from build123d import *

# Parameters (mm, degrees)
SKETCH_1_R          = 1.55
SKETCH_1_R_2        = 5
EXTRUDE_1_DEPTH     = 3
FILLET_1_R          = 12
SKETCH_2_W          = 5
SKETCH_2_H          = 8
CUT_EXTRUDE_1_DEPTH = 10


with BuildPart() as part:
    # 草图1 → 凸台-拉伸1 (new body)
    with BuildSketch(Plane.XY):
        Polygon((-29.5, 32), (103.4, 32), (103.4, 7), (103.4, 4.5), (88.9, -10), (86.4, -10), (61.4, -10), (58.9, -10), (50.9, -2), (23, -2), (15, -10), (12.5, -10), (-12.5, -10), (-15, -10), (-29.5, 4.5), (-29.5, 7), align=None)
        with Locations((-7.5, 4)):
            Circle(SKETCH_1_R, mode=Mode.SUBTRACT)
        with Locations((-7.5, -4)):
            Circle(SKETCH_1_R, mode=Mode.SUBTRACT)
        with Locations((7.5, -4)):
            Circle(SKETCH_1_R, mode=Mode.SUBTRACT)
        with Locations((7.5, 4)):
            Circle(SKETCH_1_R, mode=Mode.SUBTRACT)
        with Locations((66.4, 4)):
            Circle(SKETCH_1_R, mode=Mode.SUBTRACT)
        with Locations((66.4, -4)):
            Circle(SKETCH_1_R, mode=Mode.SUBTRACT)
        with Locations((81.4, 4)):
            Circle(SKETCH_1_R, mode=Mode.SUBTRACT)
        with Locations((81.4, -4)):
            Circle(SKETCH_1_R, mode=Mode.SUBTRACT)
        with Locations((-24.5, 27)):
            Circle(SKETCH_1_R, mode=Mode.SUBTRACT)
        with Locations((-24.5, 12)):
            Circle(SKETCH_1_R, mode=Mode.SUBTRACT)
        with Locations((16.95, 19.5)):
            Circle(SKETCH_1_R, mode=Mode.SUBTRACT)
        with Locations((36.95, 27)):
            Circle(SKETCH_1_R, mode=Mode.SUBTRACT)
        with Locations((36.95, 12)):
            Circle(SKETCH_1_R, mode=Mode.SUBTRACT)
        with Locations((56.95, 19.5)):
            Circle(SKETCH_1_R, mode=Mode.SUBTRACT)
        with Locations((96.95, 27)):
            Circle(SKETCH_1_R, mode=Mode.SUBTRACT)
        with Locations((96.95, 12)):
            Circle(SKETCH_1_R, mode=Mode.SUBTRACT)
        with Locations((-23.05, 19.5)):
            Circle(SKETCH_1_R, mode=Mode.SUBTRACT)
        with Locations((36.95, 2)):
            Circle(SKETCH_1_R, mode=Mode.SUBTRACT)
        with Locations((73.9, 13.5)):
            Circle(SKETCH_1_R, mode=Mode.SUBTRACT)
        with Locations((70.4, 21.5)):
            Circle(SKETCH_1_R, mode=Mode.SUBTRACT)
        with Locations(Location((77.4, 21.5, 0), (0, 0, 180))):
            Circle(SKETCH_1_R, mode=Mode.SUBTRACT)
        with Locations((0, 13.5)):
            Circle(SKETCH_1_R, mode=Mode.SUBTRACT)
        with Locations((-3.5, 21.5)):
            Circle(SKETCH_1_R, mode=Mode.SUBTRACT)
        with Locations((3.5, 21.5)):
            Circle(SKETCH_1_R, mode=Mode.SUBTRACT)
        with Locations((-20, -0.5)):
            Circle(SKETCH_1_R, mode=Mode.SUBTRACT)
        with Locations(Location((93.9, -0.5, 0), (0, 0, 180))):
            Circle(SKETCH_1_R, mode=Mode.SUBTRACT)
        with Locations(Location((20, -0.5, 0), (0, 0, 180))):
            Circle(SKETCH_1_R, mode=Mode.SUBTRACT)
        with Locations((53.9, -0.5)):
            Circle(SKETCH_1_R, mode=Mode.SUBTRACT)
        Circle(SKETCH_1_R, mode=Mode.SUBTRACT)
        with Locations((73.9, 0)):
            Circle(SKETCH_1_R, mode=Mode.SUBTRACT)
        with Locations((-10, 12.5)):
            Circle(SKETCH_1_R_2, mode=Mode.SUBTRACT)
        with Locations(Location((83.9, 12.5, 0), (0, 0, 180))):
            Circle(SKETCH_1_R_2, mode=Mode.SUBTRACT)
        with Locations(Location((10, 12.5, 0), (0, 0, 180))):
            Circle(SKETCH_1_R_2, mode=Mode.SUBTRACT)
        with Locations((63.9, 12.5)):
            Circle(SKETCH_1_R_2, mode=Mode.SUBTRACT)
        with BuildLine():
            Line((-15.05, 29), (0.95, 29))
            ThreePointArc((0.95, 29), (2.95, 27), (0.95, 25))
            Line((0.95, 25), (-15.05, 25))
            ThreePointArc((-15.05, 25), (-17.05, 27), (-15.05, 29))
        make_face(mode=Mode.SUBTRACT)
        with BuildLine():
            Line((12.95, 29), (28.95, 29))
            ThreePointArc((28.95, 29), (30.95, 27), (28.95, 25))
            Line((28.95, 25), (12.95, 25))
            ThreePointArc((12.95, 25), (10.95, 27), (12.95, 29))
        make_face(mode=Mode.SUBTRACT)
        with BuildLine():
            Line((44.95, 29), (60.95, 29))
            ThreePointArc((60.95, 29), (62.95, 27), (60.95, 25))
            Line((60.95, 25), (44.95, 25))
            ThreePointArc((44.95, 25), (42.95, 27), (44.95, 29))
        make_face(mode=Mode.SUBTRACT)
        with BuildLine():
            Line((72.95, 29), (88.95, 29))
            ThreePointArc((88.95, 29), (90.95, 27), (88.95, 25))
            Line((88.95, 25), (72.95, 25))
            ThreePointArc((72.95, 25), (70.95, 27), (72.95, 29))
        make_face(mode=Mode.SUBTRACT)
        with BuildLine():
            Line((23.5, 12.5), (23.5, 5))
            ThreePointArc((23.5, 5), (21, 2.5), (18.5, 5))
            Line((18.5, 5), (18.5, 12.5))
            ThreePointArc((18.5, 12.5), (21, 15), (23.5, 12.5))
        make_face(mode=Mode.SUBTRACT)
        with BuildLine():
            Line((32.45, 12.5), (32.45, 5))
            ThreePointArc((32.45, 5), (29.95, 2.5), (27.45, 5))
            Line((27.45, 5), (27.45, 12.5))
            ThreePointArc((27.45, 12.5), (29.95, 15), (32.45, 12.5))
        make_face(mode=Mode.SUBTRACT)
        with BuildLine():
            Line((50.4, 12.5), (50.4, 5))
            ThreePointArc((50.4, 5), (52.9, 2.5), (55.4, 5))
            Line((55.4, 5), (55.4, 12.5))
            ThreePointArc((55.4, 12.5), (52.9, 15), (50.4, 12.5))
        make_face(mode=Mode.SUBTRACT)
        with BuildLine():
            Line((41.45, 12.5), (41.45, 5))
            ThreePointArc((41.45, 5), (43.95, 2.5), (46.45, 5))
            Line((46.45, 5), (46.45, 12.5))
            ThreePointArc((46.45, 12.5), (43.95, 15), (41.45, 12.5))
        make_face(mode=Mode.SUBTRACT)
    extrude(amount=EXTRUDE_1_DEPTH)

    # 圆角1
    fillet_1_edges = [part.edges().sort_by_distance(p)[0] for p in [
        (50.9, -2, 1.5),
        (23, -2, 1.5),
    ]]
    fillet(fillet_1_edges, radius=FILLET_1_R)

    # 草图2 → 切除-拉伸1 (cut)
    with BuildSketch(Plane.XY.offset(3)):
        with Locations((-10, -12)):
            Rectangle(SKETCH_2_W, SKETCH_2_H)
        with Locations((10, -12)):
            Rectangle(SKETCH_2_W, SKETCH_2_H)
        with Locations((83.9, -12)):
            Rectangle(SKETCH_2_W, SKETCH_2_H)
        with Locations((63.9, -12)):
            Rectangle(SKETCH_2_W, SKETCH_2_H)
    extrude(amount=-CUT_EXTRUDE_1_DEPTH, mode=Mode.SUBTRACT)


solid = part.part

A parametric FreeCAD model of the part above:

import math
import FreeCAD as App
import Part
import Sketcher
from FreeCAD import Vector
Q = App.Units.Quantity


def edges_at(feature, points):
    """Names of the edges that pass closest to the given points."""
    edges = feature.Shape.Edges
    near = lambda p: min(range(len(edges)), key=lambda i: edges[i].distToShape(Part.Vertex(*p))[0])
    return sorted({f"Edge{near(p) + 1}" for p in points})

doc = App.newDocument("Part")
body = doc.addObject("PartDesign::Body", "Body")

# Sketch on XY plane
sketch1 = body.newObject("Sketcher::SketchObject", "Sketch")
sketch1.AttachmentSupport = (doc.getObject("XY_Plane"), [""])
sketch1.MapMode = "FlatFace"
sketch1.addGeometry(Part.LineSegment(Vector(103.4, 32, 0), Vector(-29.5, 32, 0)), False)
sketch1.addGeometry(Part.LineSegment(Vector(-29.5, 32, 0), Vector(-29.5, 4.5, 0)), False)
sketch1.addGeometry(Part.LineSegment(Vector(-29.5, 4.5, 0), Vector(-15, -10, 0)), False)
sketch1.addGeometry(Part.LineSegment(Vector(-15, -10, 0), Vector(15, -10, 0)), False)
sketch1.addGeometry(Part.LineSegment(Vector(15, -10, 0), Vector(23, -2, 0)), False)
sketch1.addGeometry(Part.LineSegment(Vector(23, -2, 0), Vector(50.9, -2, 0)), False)
sketch1.addGeometry(Part.LineSegment(Vector(50.9, -2, 0), Vector(58.9, -10, 0)), False)
sketch1.addGeometry(Part.LineSegment(Vector(58.9, -10, 0), Vector(88.9, -10, 0)), False)
sketch1.addGeometry(Part.LineSegment(Vector(88.9, -10, 0), Vector(103.4, 4.5, 0)), False)
sketch1.addGeometry(Part.LineSegment(Vector(103.4, 4.5, 0), Vector(103.4, 32, 0)), False)
sketch1.addGeometry(Part.Circle(Vector(81.4, -4, 0), Vector(0, 0, 1), 1.6), False)
sketch1.addGeometry(Part.Circle(Vector(93.9, -0.5, 0), Vector(0, 0, 1), 1.6), False)
sketch1.addGeometry(Part.Circle(Vector(73.9, 0, 0), Vector(0, 0, 1), 1.6), False)
sketch1.addGeometry(Part.Circle(Vector(66.4, -4, 0), Vector(0, 0, 1), 1.6), False)
sketch1.addGeometry(Part.Circle(Vector(53.9, -0.5, 0), Vector(0, 0, 1), 1.6), False)
sketch1.addGeometry(Part.Circle(Vector(37, 2, 0), Vector(0, 0, 1), 1.6), False)
sketch1.addGeometry(Part.Circle(Vector(81.4, 4, 0), Vector(0, 0, 1), 1.6), False)
sketch1.addGeometry(Part.Circle(Vector(66.4, 4, 0), Vector(0, 0, 1), 1.6), False)
sketch1.addGeometry(Part.ArcOfCircle(Part.Circle(Vector(52.9, 12.5, 0), Vector(0, 0, 1), 2.5), math.radians(0), math.radians(180)), False)
sketch1.addGeometry(Part.LineSegment(Vector(55.4, 12.5, 0), Vector(55.4, 5, 0)), False)
sketch1.addGeometry(Part.ArcOfCircle(Part.Circle(Vector(52.9, 5, 0), Vector(0, 0, 1), 2.5), math.radians(180), math.radians(360)), False)
sketch1.addGeometry(Part.LineSegment(Vector(50.4, 5, 0), Vector(50.4, 12.5, 0)), False)
sketch1.addGeometry(Part.ArcOfCircle(Part.Circle(Vector(44, 12.5, 0), Vector(0, 0, 1), 2.5), math.radians(0), math.radians(180)), False)
sketch1.addGeometry(Part.LineSegment(Vector(46.5, 12.5, 0), Vector(46.5, 5, 0)), False)
sketch1.addGeometry(Part.ArcOfCircle(Part.Circle(Vector(44, 5, 0), Vector(0, 0, 1), 2.5), math.radians(180), math.radians(360)), False)
sketch1.addGeometry(Part.LineSegment(Vector(41.5, 5, 0), Vector(41.5, 12.5, 0)), False)
sketch1.addGeometry(Part.Circle(Vector(7.5, -4, 0), Vector(0, 0, 1), 1.6), False)
sketch1.addGeometry(Part.Circle(Vector(20, -0.5, 0), Vector(0, 0, 1), 1.6), False)
sketch1.addGeometry(Part.Circle(Vector(-7.5, -4, 0), Vector(0, 0, 1), 1.6), False)
sketch1.addGeometry(Part.Circle(Vector(0, 0, 0), Vector(0, 0, 1), 1.6), False)
sketch1.addGeometry(Part.Circle(Vector(-20, -0.5, 0), Vector(0, 0, 1), 1.6), False)
sketch1.addGeometry(Part.Circle(Vector(7.5, 4, 0), Vector(0, 0, 1), 1.6), False)
sketch1.addGeometry(Part.LineSegment(Vector(32.5, 12.5, 0), Vector(32.5, 5, 0)), False)
sketch1.addGeometry(Part.ArcOfCircle(Part.Circle(Vector(29.9, 5, 0), Vector(0, 0, 1), 2.5), math.radians(180), math.radians(360)), False)
sketch1.addGeometry(Part.LineSegment(Vector(27.4, 5, 0), Vector(27.4, 12.5, 0)), False)
sketch1.addGeometry(Part.ArcOfCircle(Part.Circle(Vector(29.9, 12.5, 0), Vector(0, 0, 1), 2.5), math.radians(0), math.radians(180)), False)
sketch1.addGeometry(Part.LineSegment(Vector(23.5, 12.5, 0), Vector(23.5, 5, 0)), False)
sketch1.addGeometry(Part.ArcOfCircle(Part.Circle(Vector(21, 5, 0), Vector(0, 0, 1), 2.5), math.radians(180), math.radians(360)), False)
sketch1.addGeometry(Part.LineSegment(Vector(18.5, 5, 0), Vector(18.5, 12.5, 0)), False)
sketch1.addGeometry(Part.ArcOfCircle(Part.Circle(Vector(21, 12.5, 0), Vector(0, 0, 1), 2.5), math.radians(0), math.radians(180)), False)
sketch1.addGeometry(Part.Circle(Vector(-7.5, 4, 0), Vector(0, 0, 1), 1.6), False)
sketch1.addGeometry(Part.Circle(Vector(97, 12, 0), Vector(0, 0, 1), 1.6), False)
sketch1.addGeometry(Part.Circle(Vector(83.9, 12.5, 0), Vector(0, 0, 1), 5), False)
sketch1.addGeometry(Part.Circle(Vector(73.9, 13.5, 0), Vector(0, 0, 1), 1.6), False)
sketch1.addGeometry(Part.Circle(Vector(63.9, 12.5, 0), Vector(0, 0, 1), 5), False)
sketch1.addGeometry(Part.Circle(Vector(37, 12, 0), Vector(0, 0, 1), 1.6), False)
sketch1.addGeometry(Part.Circle(Vector(57, 19.5, 0), Vector(0, 0, 1), 1.6), False)
sketch1.addGeometry(Part.Circle(Vector(77.4, 21.5, 0), Vector(0, 0, 1), 1.6), False)
sketch1.addGeometry(Part.Circle(Vector(70.4, 21.5, 0), Vector(0, 0, 1), 1.6), False)
sketch1.addGeometry(Part.Circle(Vector(97, 27, 0), Vector(0, 0, 1), 1.6), False)
sketch1.addGeometry(Part.LineSegment(Vector(73, 29, 0), Vector(89, 29, 0)), False)
sketch1.addGeometry(Part.ArcOfCircle(Part.Circle(Vector(89, 27, 0), Vector(0, 0, 1), 2), math.radians(-90), math.radians(90)), False)
sketch1.addGeometry(Part.LineSegment(Vector(89, 25, 0), Vector(73, 25, 0)), False)
sketch1.addGeometry(Part.ArcOfCircle(Part.Circle(Vector(73, 27, 0), Vector(0, 0, 1), 2), math.radians(90), math.radians(270)), False)
sketch1.addGeometry(Part.LineSegment(Vector(45, 29, 0), Vector(61, 29, 0)), False)
sketch1.addGeometry(Part.ArcOfCircle(Part.Circle(Vector(61, 27, 0), Vector(0, 0, 1), 2), math.radians(-90), math.radians(90)), False)
sketch1.addGeometry(Part.LineSegment(Vector(61, 25, 0), Vector(45, 25, 0)), False)
sketch1.addGeometry(Part.ArcOfCircle(Part.Circle(Vector(45, 27, 0), Vector(0, 0, 1), 2), math.radians(90), math.radians(270)), False)
sketch1.addGeometry(Part.Circle(Vector(37, 27, 0), Vector(0, 0, 1), 1.6), False)
sketch1.addGeometry(Part.Circle(Vector(10, 12.5, 0), Vector(0, 0, 1), 5), False)
sketch1.addGeometry(Part.Circle(Vector(16.9, 19.5, 0), Vector(0, 0, 1), 1.6), False)
sketch1.addGeometry(Part.Circle(Vector(0, 13.5, 0), Vector(0, 0, 1), 1.6), False)
sketch1.addGeometry(Part.Circle(Vector(-10, 12.5, 0), Vector(0, 0, 1), 5), False)
sketch1.addGeometry(Part.Circle(Vector(-24.5, 12, 0), Vector(0, 0, 1), 1.6), False)
sketch1.addGeometry(Part.Circle(Vector(-23.1, 19.5, 0), Vector(0, 0, 1), 1.6), False)
sketch1.addGeometry(Part.LineSegment(Vector(12.9, 29, 0), Vector(28.9, 29, 0)), False)
sketch1.addGeometry(Part.ArcOfCircle(Part.Circle(Vector(28.9, 27, 0), Vector(0, 0, 1), 2), math.radians(-90), math.radians(90)), False)
sketch1.addGeometry(Part.LineSegment(Vector(28.9, 25, 0), Vector(12.9, 25, 0)), False)
sketch1.addGeometry(Part.ArcOfCircle(Part.Circle(Vector(12.9, 27, 0), Vector(0, 0, 1), 2), math.radians(90), math.radians(270)), False)
sketch1.addGeometry(Part.Circle(Vector(3.5, 21.5, 0), Vector(0, 0, 1), 1.6), False)
sketch1.addGeometry(Part.Circle(Vector(-3.5, 21.5, 0), Vector(0, 0, 1), 1.6), False)
sketch1.addGeometry(Part.LineSegment(Vector(-15.1, 29, 0), Vector(0.9, 29, 0)), False)
sketch1.addGeometry(Part.ArcOfCircle(Part.Circle(Vector(0.9, 27, 0), Vector(0, 0, 1), 2), math.radians(-90), math.radians(90)), False)
sketch1.addGeometry(Part.LineSegment(Vector(0.9, 25, 0), Vector(-15.1, 25, 0)), False)
sketch1.addGeometry(Part.ArcOfCircle(Part.Circle(Vector(-15.1, 27, 0), Vector(0, 0, 1), 2), math.radians(90), math.radians(270)), False)
sketch1.addGeometry(Part.Circle(Vector(-24.5, 27, 0), Vector(0, 0, 1), 1.6), False)
sketch1.addConstraint(Sketcher.Constraint("Coincident", 0, 2, 1, 1))
sketch1.addConstraint(Sketcher.Constraint("Coincident", 1, 2, 2, 1))
sketch1.addConstraint(Sketcher.Constraint("Coincident", 2, 2, 3, 1))
sketch1.addConstraint(Sketcher.Constraint("Coincident", 3, 2, 4, 1))
sketch1.addConstraint(Sketcher.Constraint("Coincident", 4, 2, 5, 1))
sketch1.addConstraint(Sketcher.Constraint("Coincident", 5, 2, 6, 1))
sketch1.addConstraint(Sketcher.Constraint("Coincident", 6, 2, 7, 1))
sketch1.addConstraint(Sketcher.Constraint("Coincident", 7, 2, 8, 1))
sketch1.addConstraint(Sketcher.Constraint("Coincident", 8, 2, 9, 1))
sketch1.addConstraint(Sketcher.Constraint("Coincident", 9, 2, 0, 1))
sketch1.addConstraint(Sketcher.Constraint("Tangent", 18, 1, 19, 1))
sketch1.addConstraint(Sketcher.Constraint("Tangent", 19, 2, 20, 2))
sketch1.addConstraint(Sketcher.Constraint("Tangent", 20, 1, 21, 1))
sketch1.addConstraint(Sketcher.Constraint("Tangent", 21, 2, 18, 2))
sketch1.addConstraint(Sketcher.Constraint("Tangent", 22, 1, 23, 1))
sketch1.addConstraint(Sketcher.Constraint("Tangent", 23, 2, 24, 2))
sketch1.addConstraint(Sketcher.Constraint("Tangent", 24, 1, 25, 1))
sketch1.addConstraint(Sketcher.Constraint("Tangent", 25, 2, 22, 2))
sketch1.addConstraint(Sketcher.Constraint("Tangent", 32, 2, 33, 2))
sketch1.addConstraint(Sketcher.Constraint("Tangent", 33, 1, 34, 1))
sketch1.addConstraint(Sketcher.Constraint("Tangent", 34, 2, 35, 2))
sketch1.addConstraint(Sketcher.Constraint("Tangent", 35, 1, 32, 1))
sketch1.addConstraint(Sketcher.Constraint("Tangent", 36, 2, 37, 2))
sketch1.addConstraint(Sketcher.Constraint("Tangent", 37, 1, 38, 1))
sketch1.addConstraint(Sketcher.Constraint("Tangent", 38, 2, 39, 2))
sketch1.addConstraint(Sketcher.Constraint("Tangent", 39, 1, 36, 1))
sketch1.addConstraint(Sketcher.Constraint("Tangent", 50, 2, 51, 2))
sketch1.addConstraint(Sketcher.Constraint("Tangent", 51, 1, 52, 1))
sketch1.addConstraint(Sketcher.Constraint("Tangent", 52, 2, 53, 2))
sketch1.addConstraint(Sketcher.Constraint("Tangent", 53, 1, 50, 1))
sketch1.addConstraint(Sketcher.Constraint("Tangent", 54, 2, 55, 2))
sketch1.addConstraint(Sketcher.Constraint("Tangent", 55, 1, 56, 1))
sketch1.addConstraint(Sketcher.Constraint("Tangent", 56, 2, 57, 2))
sketch1.addConstraint(Sketcher.Constraint("Tangent", 57, 1, 54, 1))
sketch1.addConstraint(Sketcher.Constraint("Tangent", 65, 2, 66, 2))
sketch1.addConstraint(Sketcher.Constraint("Tangent", 66, 1, 67, 1))
sketch1.addConstraint(Sketcher.Constraint("Tangent", 67, 2, 68, 2))
sketch1.addConstraint(Sketcher.Constraint("Tangent", 68, 1, 65, 1))
sketch1.addConstraint(Sketcher.Constraint("Tangent", 71, 2, 72, 2))
sketch1.addConstraint(Sketcher.Constraint("Tangent", 72, 1, 73, 1))
sketch1.addConstraint(Sketcher.Constraint("Tangent", 73, 2, 74, 2))
sketch1.addConstraint(Sketcher.Constraint("Tangent", 74, 1, 71, 1))
sketch1.addConstraint(Sketcher.Constraint("Horizontal", 0))
sketch1.addConstraint(Sketcher.Constraint("Vertical", 1))
sketch1.addConstraint(Sketcher.Constraint("Horizontal", 3))
sketch1.addConstraint(Sketcher.Constraint("Horizontal", 5))
sketch1.addConstraint(Sketcher.Constraint("Horizontal", 7))
sketch1.addConstraint(Sketcher.Constraint("Vertical", 9))
sketch1.addConstraint(Sketcher.Constraint("Vertical", 19))
sketch1.addConstraint(Sketcher.Constraint("Vertical", 21))
sketch1.addConstraint(Sketcher.Constraint("Vertical", 23))
sketch1.addConstraint(Sketcher.Constraint("Vertical", 25))
sketch1.addConstraint(Sketcher.Constraint("Vertical", 32))
sketch1.addConstraint(Sketcher.Constraint("Vertical", 34))
sketch1.addConstraint(Sketcher.Constraint("Vertical", 36))
sketch1.addConstraint(Sketcher.Constraint("Vertical", 38))
sketch1.addConstraint(Sketcher.Constraint("Horizontal", 50))
sketch1.addConstraint(Sketcher.Constraint("Horizontal", 52))
sketch1.addConstraint(Sketcher.Constraint("Horizontal", 54))
sketch1.addConstraint(Sketcher.Constraint("Horizontal", 56))
sketch1.addConstraint(Sketcher.Constraint("Horizontal", 65))
sketch1.addConstraint(Sketcher.Constraint("Horizontal", 67))
sketch1.addConstraint(Sketcher.Constraint("Horizontal", 71))
sketch1.addConstraint(Sketcher.Constraint("Horizontal", 73))
sketch1.addConstraint(Sketcher.Constraint("Coincident", 29, 3, -1, 1))
sketch1.addConstraint(Sketcher.Constraint("Equal", 10, 11))
sketch1.addConstraint(Sketcher.Constraint("Equal", 11, 12))
sketch1.addConstraint(Sketcher.Constraint("Equal", 12, 13))
sketch1.addConstraint(Sketcher.Constraint("Equal", 13, 14))
sketch1.addConstraint(Sketcher.Constraint("Equal", 14, 15))
sketch1.addConstraint(Sketcher.Constraint("Equal", 15, 16))
sketch1.addConstraint(Sketcher.Constraint("Equal", 16, 17))
sketch1.addConstraint(Sketcher.Constraint("Equal", 20, 22))
sketch1.addConstraint(Sketcher.Constraint("Equal", 17, 26))
sketch1.addConstraint(Sketcher.Constraint("Equal", 26, 27))
sketch1.addConstraint(Sketcher.Constraint("Equal", 27, 28))
sketch1.addConstraint(Sketcher.Constraint("Equal", 28, 29))
sketch1.addConstraint(Sketcher.Constraint("Equal", 29, 30))
sketch1.addConstraint(Sketcher.Constraint("Equal", 30, 31))
sketch1.addConstraint(Sketcher.Constraint("Equal", 24, 33))
sketch1.addConstraint(Sketcher.Constraint("Equal", 35, 37))
sketch1.addConstraint(Sketcher.Constraint("Equal", 31, 40))
sketch1.addConstraint(Sketcher.Constraint("Equal", 40, 41))
sketch1.addConstraint(Sketcher.Constraint("Equal", 41, 43))
sketch1.addConstraint(Sketcher.Constraint("Equal", 42, 44))
sketch1.addConstraint(Sketcher.Constraint("Equal", 43, 45))
sketch1.addConstraint(Sketcher.Constraint("Equal", 45, 46))
sketch1.addConstraint(Sketcher.Constraint("Equal", 46, 47))
sketch1.addConstraint(Sketcher.Constraint("Equal", 47, 48))
sketch1.addConstraint(Sketcher.Constraint("Equal", 48, 49))
sketch1.addConstraint(Sketcher.Constraint("Equal", 53, 55))
sketch1.addConstraint(Sketcher.Constraint("Equal", 49, 58))
sketch1.addConstraint(Sketcher.Constraint("Equal", 44, 59))
sketch1.addConstraint(Sketcher.Constraint("Equal", 58, 60))
sketch1.addConstraint(Sketcher.Constraint("Equal", 60, 61))
sketch1.addConstraint(Sketcher.Constraint("Equal", 59, 62))
sketch1.addConstraint(Sketcher.Constraint("Equal", 61, 63))
sketch1.addConstraint(Sketcher.Constraint("Equal", 63, 64))
sketch1.addConstraint(Sketcher.Constraint("Equal", 57, 66))
sketch1.addConstraint(Sketcher.Constraint("Equal", 64, 69))
sketch1.addConstraint(Sketcher.Constraint("Equal", 69, 70))
sketch1.addConstraint(Sketcher.Constraint("Equal", 68, 72))
sketch1.addConstraint(Sketcher.Constraint("Equal", 70, 75))
sketch1.addConstraint(Sketcher.Constraint("Symmetric", 28, 3, 31, 3, -1, 1))
sketch1.addConstraint(Sketcher.Constraint("Symmetric", 26, 3, 40, 3, -1, 1))
sketch1.addConstraint(Sketcher.Constraint("Symmetric", 26, 3, 28, 3, -2))
sketch1.addConstraint(Sketcher.Constraint("Symmetric", 27, 3, 30, 3, -2))
sketch1.addConstraint(Sketcher.Constraint("Symmetric", 59, 3, 62, 3, -2))
sketch1.addConstraint(Sketcher.Constraint("Symmetric", 69, 3, 70, 3, -2))
sketch1.addConstraint(Sketcher.Constraint("Symmetric", 10, 3, 16, 3, -1))
sketch1.addConstraint(Sketcher.Constraint("Symmetric", 13, 3, 17, 3, -1))
sketch1.addConstraint(Sketcher.Constraint("PointOnObject", 12, 3, -1))
sketch1.addConstraint(Sketcher.Constraint("PointOnObject", 61, 3, -2))
sketch1.addConstraint(Sketcher.Constraint("Perpendicular", 2, 4))
sketch1.addConstraint(Sketcher.Constraint("Perpendicular", 4, 6))
sketch1.addConstraint(Sketcher.Constraint("Perpendicular", 6, 8))
sketch1.addConstraint(Sketcher.Constraint("Horizontal", 10, 3, 13, 3))
sketch1.addConstraint(Sketcher.Constraint("Horizontal", 11, 3, 14, 3))
sketch1.addConstraint(Sketcher.Constraint("Horizontal", 18, 3, 22, 3))
sketch1.addConstraint(Sketcher.Constraint("Horizontal", 20, 3, 24, 3))
sketch1.addConstraint(Sketcher.Constraint("Horizontal", 13, 3, 26, 3))
sketch1.addConstraint(Sketcher.Constraint("Horizontal", 14, 3, 27, 3))
sketch1.addConstraint(Sketcher.Constraint("Horizontal", 24, 3, 33, 3))
sketch1.addConstraint(Sketcher.Constraint("Horizontal", 22, 3, 35, 3))
sketch1.addConstraint(Sketcher.Constraint("Horizontal", 33, 3, 37, 3))
sketch1.addConstraint(Sketcher.Constraint("Horizontal", 35, 3, 39, 3))
sketch1.addConstraint(Sketcher.Constraint("Horizontal", 39, 3, 42, 3))
sketch1.addConstraint(Sketcher.Constraint("Horizontal", 42, 3, 44, 3))
sketch1.addConstraint(Sketcher.Constraint("Horizontal", 41, 3, 45, 3))
sketch1.addConstraint(Sketcher.Constraint("Horizontal", 47, 3, 48, 3))
sketch1.addConstraint(Sketcher.Constraint("Horizontal", 49, 3, 51, 3))
sketch1.addConstraint(Sketcher.Constraint("Horizontal", 53, 3, 55, 3))
sketch1.addConstraint(Sketcher.Constraint("Horizontal", 57, 3, 58, 3))
sketch1.addConstraint(Sketcher.Constraint("Horizontal", 44, 3, 59, 3))
sketch1.addConstraint(Sketcher.Constraint("Horizontal", 46, 3, 60, 3))
sketch1.addConstraint(Sketcher.Constraint("Horizontal", 43, 3, 61, 3))
sketch1.addConstraint(Sketcher.Constraint("Horizontal", 45, 3, 63, 3))
sketch1.addConstraint(Sketcher.Constraint("Horizontal", 60, 3, 64, 3))
sketch1.addConstraint(Sketcher.Constraint("Horizontal", 58, 3, 66, 3))
sketch1.addConstraint(Sketcher.Constraint("Horizontal", 48, 3, 69, 3))
sketch1.addConstraint(Sketcher.Constraint("Horizontal", 68, 3, 72, 3))
sketch1.addConstraint(Sketcher.Constraint("Horizontal", 74, 3, 75, 3))
sketch1.addConstraint(Sketcher.Constraint("Horizontal", 3, 2, 6, 2))
sketch1.addConstraint(Sketcher.Constraint("Horizontal", 1, 2, 8, 2))
sketch1.addConstraint(Sketcher.Constraint("Vertical", 12, 3, 43, 3))
sketch1.addConstraint(Sketcher.Constraint("Vertical", 15, 3, 45, 3))
sketch1.addConstraint(Sketcher.Constraint("Vertical", 41, 3, 49, 3))
sketch1.addConstraint(Sketcher.Constraint("Vertical", 45, 3, 58, 3))
sketch1.addConstraint(Sketcher.Constraint("Vertical", 63, 3, 75, 3))
sketch1.addConstraint(Sketcher.Constraint("Equal", 3, 7))
sketch1.addConstraint(Sketcher.Constraint("Equal", 52, 54))
sketch1.addConstraint(Sketcher.Constraint("Equal", 56, 65))
sketch1.addConstraint(Sketcher.Constraint("Equal", 67, 71))
sketch1.addConstraint(Sketcher.Constraint("Equal", 4, 6))
sketch1.addConstraint(Sketcher.Constraint("Diameter", 42, Q("10 mm")))
sketch1.addConstraint(Sketcher.Constraint("Radius", 51, Q("2 mm")))
sketch1.addConstraint(Sketcher.Constraint("Diameter", 10, Q("3.1 mm")))
sketch1.addConstraint(Sketcher.Constraint("Radius", 18, Q("2.5 mm")))
sketch1.addConstraint(Sketcher.Constraint("DistanceX", 3, 1, 3, 2, Q("30 mm")))
sketch1.addConstraint(Sketcher.Constraint("DistanceX", 50, 1, 50, 2, Q("16 mm")))
sketch1.addConstraint(Sketcher.Constraint("DistanceX", 0, 2, 0, 1, Q("132.9 mm")))
sketch1.addConstraint(Sketcher.Constraint("DistanceX", 5, 1, 5, 2, Q("27.9 mm")))
sketch1.addConstraint(Sketcher.Constraint("DistanceY", 1, 2, 1, 1, Q("27.5 mm")))
sketch1.addConstraint(Sketcher.Constraint("DistanceY", 19, 2, 19, 1, Q("7.5 mm")))
sketch1.addConstraint(Sketcher.Constraint("DistanceY", 10, 3, -1, 1, Q("4 mm")))
sketch1.addConstraint(Sketcher.Constraint("DistanceY", -1, 1, 15, 3, Q("2 mm")))
sketch1.addConstraint(Sketcher.Constraint("DistanceY", -1, 1, 20, 3, Q("5 mm")))
sketch1.addConstraint(Sketcher.Constraint("DistanceX", -1, 1, 27, 3, Q("20 mm")))
sketch1.addConstraint(Sketcher.Constraint("DistanceX", -1, 1, 37, 3, Q("21 mm")))
sketch1.addConstraint(Sketcher.Constraint("DistanceY", -1, 1, 41, 3, Q("12 mm")))
sketch1.addConstraint(Sketcher.Constraint("DistanceY", -1, 1, 49, 3, Q("27 mm")))
sketch1.addConstraint(Sketcher.Constraint("DistanceX", -1, 1, 59, 3, Q("10 mm")))
sketch1.addConstraint(Sketcher.Constraint("DistanceY", -1, 1, 0, 2, Q("32 mm")))
sketch1.addConstraint(Sketcher.Constraint("DistanceX", 2, 2, -1, 1, Q("15 mm")))
sketch1.addConstraint(Sketcher.Constraint("DistanceY", 2, 2, -1, 1, Q("10 mm")))
sketch1.addConstraint(Sketcher.Constraint("DistanceX", -1, 1, 10, 3, Q("81.4 mm")))
sketch1.addConstraint(Sketcher.Constraint("DistanceX", -1, 1, 11, 3, Q("93.9 mm")))
sketch1.addConstraint(Sketcher.Constraint("DistanceY", 11, 3, -1, 1, Q("0.5 mm")))
sketch1.addConstraint(Sketcher.Constraint("DistanceX", -1, 1, 12, 3, Q("73.9 mm")))
sketch1.addConstraint(Sketcher.Constraint("DistanceX", -1, 1, 13, 3, Q("66.4 mm")))
sketch1.addConstraint(Sketcher.Constraint("DistanceX", -1, 1, 14, 3, Q("53.9 mm")))
sketch1.addConstraint(Sketcher.Constraint("DistanceX", -1, 1, 18, 3, Q("52.9 mm")))
sketch1.addConstraint(Sketcher.Constraint("DistanceX", -1, 1, 26, 3, Q("7.5 mm")))
sketch1.addConstraint(Sketcher.Constraint("DistanceX", -1, 1, 42, 3, Q("83.9 mm")))
sketch1.addConstraint(Sketcher.Constraint("DistanceY", -1, 1, 43, 3, Q("13.5 mm")))
sketch1.addConstraint(Sketcher.Constraint("DistanceX", -1, 1, 44, 3, Q("63.9 mm")))
sketch1.addConstraint(Sketcher.Constraint("DistanceY", -1, 1, 46, 3, Q("19.5 mm")))
sketch1.addConstraint(Sketcher.Constraint("DistanceX", -1, 1, 47, 3, Q("77.4 mm")))
sketch1.addConstraint(Sketcher.Constraint("DistanceY", -1, 1, 47, 3, Q("21.5 mm")))
sketch1.addConstraint(Sketcher.Constraint("DistanceX", -1, 1, 48, 3, Q("70.4 mm")))
sketch1.addConstraint(Sketcher.Constraint("DistanceX", 63, 3, -1, 1, Q("24.5 mm")))
sketch1.addConstraint(Sketcher.Constraint("DistanceX", -1, 1, 69, 3, Q("3.5 mm")))
sketch1.addConstraint(Sketcher.Constraint("DistanceX", -1, 1, 15, 3, Q("36.95 mm")))
sketch1.addConstraint(Sketcher.Constraint("DistanceX", -1, 1, 22, 3, Q("43.95 mm")))
sketch1.addConstraint(Sketcher.Constraint("DistanceX", -1, 1, 33, 3, Q("29.95 mm")))
sketch1.addConstraint(Sketcher.Constraint("DistanceX", -1, 1, 41, 3, Q("96.95 mm")))
sketch1.addConstraint(Sketcher.Constraint("DistanceX", -1, 1, 46, 3, Q("56.95 mm")))
sketch1.addConstraint(Sketcher.Constraint("DistanceX", -1, 1, 51, 3, Q("88.95 mm")))
sketch1.addConstraint(Sketcher.Constraint("DistanceX", -1, 1, 55, 3, Q("60.95 mm")))
sketch1.addConstraint(Sketcher.Constraint("DistanceX", -1, 1, 60, 3, Q("16.95 mm")))
sketch1.addConstraint(Sketcher.Constraint("DistanceX", 64, 3, -1, 1, Q("23.05 mm")))
sketch1.addConstraint(Sketcher.Constraint("DistanceX", -1, 1, 66, 3, Q("28.95 mm")))
sketch1.addConstraint(Sketcher.Constraint("DistanceX", -1, 1, 72, 3, Q("0.95 mm")))
pad1 = body.newObject("PartDesign::Pad", "Pad")
pad1.Profile = sketch1
pad1.Length = 3
doc.recompute()

fillet = body.newObject("PartDesign::Fillet", "Fillet")
fillet.Base = (pad1, edges_at(pad1, [(50.9, -2, 1.5), (23, -2, 1.5)]))
fillet.Radius = 12

# Sketch on XY plane
sketch2 = body.newObject("Sketcher::SketchObject", "Sketch001")
sketch2.AttachmentSupport = (doc.getObject("XY_Plane"), [""])
sketch2.MapMode = "FlatFace"
sketch2.AttachmentOffset = App.Placement(Vector(0, 0, 3), App.Rotation())
sketch2.addGeometry(Part.LineSegment(Vector(-12, -8, 0), Vector(-12, -16, 0)), False)
sketch2.addGeometry(Part.LineSegment(Vector(-12, -16, 0), Vector(-8, -16, 0)), False)
sketch2.addGeometry(Part.LineSegment(Vector(-8, -16, 0), Vector(-8, -8, 0)), False)
sketch2.addGeometry(Part.LineSegment(Vector(-8, -8, 0), Vector(-12, -8, 0)), False)
sketch2.addGeometry(Part.LineSegment(Vector(8, -8, 0), Vector(8, -16, 0)), False)
sketch2.addGeometry(Part.LineSegment(Vector(8, -16, 0), Vector(12, -16, 0)), False)
sketch2.addGeometry(Part.LineSegment(Vector(12, -16, 0), Vector(12, -8, 0)), False)
sketch2.addGeometry(Part.LineSegment(Vector(12, -8, 0), Vector(8, -8, 0)), False)
sketch2.addGeometry(Part.LineSegment(Vector(81, -8, 0), Vector(81, -16, 0)), False)
sketch2.addGeometry(Part.LineSegment(Vector(81, -16, 0), Vector(86, -16, 0)), False)
sketch2.addGeometry(Part.LineSegment(Vector(86, -16, 0), Vector(86, -8, 0)), False)
sketch2.addGeometry(Part.LineSegment(Vector(86, -8, 0), Vector(81, -8, 0)), False)
sketch2.addGeometry(Part.LineSegment(Vector(61, -8, 0), Vector(61, -16, 0)), False)
sketch2.addGeometry(Part.LineSegment(Vector(61, -16, 0), Vector(66, -16, 0)), False)
sketch2.addGeometry(Part.LineSegment(Vector(66, -16, 0), Vector(66, -8, 0)), False)
sketch2.addGeometry(Part.LineSegment(Vector(66, -8, 0), Vector(61, -8, 0)), False)
sketch2.addConstraint(Sketcher.Constraint("Coincident", 0, 2, 1, 1))
sketch2.addConstraint(Sketcher.Constraint("Coincident", 1, 2, 2, 1))
sketch2.addConstraint(Sketcher.Constraint("Coincident", 2, 2, 3, 1))
sketch2.addConstraint(Sketcher.Constraint("Coincident", 3, 2, 0, 1))
sketch2.addConstraint(Sketcher.Constraint("Coincident", 4, 2, 5, 1))
sketch2.addConstraint(Sketcher.Constraint("Coincident", 5, 2, 6, 1))
sketch2.addConstraint(Sketcher.Constraint("Coincident", 6, 2, 7, 1))
sketch2.addConstraint(Sketcher.Constraint("Coincident", 7, 2, 4, 1))
sketch2.addConstraint(Sketcher.Constraint("Coincident", 8, 2, 9, 1))
sketch2.addConstraint(Sketcher.Constraint("Coincident", 9, 2, 10, 1))
sketch2.addConstraint(Sketcher.Constraint("Coincident", 10, 2, 11, 1))
sketch2.addConstraint(Sketcher.Constraint("Coincident", 11, 2, 8, 1))
sketch2.addConstraint(Sketcher.Constraint("Coincident", 12, 2, 13, 1))
sketch2.addConstraint(Sketcher.Constraint("Coincident", 13, 2, 14, 1))
sketch2.addConstraint(Sketcher.Constraint("Coincident", 14, 2, 15, 1))
sketch2.addConstraint(Sketcher.Constraint("Coincident", 15, 2, 12, 1))
sketch2.addConstraint(Sketcher.Constraint("Vertical", 0))
sketch2.addConstraint(Sketcher.Constraint("Horizontal", 1))
sketch2.addConstraint(Sketcher.Constraint("Vertical", 2))
sketch2.addConstraint(Sketcher.Constraint("Horizontal", 3))
sketch2.addConstraint(Sketcher.Constraint("Vertical", 4))
sketch2.addConstraint(Sketcher.Constraint("Horizontal", 5))
sketch2.addConstraint(Sketcher.Constraint("Vertical", 6))
sketch2.addConstraint(Sketcher.Constraint("Horizontal", 7))
sketch2.addConstraint(Sketcher.Constraint("Vertical", 8))
sketch2.addConstraint(Sketcher.Constraint("Horizontal", 9))
sketch2.addConstraint(Sketcher.Constraint("Vertical", 10))
sketch2.addConstraint(Sketcher.Constraint("Horizontal", 11))
sketch2.addConstraint(Sketcher.Constraint("Vertical", 12))
sketch2.addConstraint(Sketcher.Constraint("Horizontal", 13))
sketch2.addConstraint(Sketcher.Constraint("Vertical", 14))
sketch2.addConstraint(Sketcher.Constraint("Horizontal", 15))
sketch2.addConstraint(Sketcher.Constraint("Symmetric", 1, 2, 4, 2, -2))
sketch2.addConstraint(Sketcher.Constraint("Symmetric", 3, 2, 6, 2, -2))
sketch2.addConstraint(Sketcher.Constraint("Horizontal", 5, 2, 8, 2))
sketch2.addConstraint(Sketcher.Constraint("Horizontal", 7, 2, 10, 2))
sketch2.addConstraint(Sketcher.Constraint("Horizontal", 9, 2, 12, 2))
sketch2.addConstraint(Sketcher.Constraint("Horizontal", 11, 2, 14, 2))
sketch2.addConstraint(Sketcher.Constraint("Equal", 7, 9))
sketch2.addConstraint(Sketcher.Constraint("Equal", 11, 13))
sketch2.addConstraint(Sketcher.Constraint("DistanceX", 1, 1, 1, 2, Q("5 mm")))
sketch2.addConstraint(Sketcher.Constraint("DistanceY", 0, 2, 0, 1, Q("8 mm")))
sketch2.addConstraint(Sketcher.Constraint("DistanceY", 0, 2, -1, 1, Q("16 mm")))
sketch2.addConstraint(Sketcher.Constraint("DistanceX", 1, 2, 4, 2, Q("15 mm")))
sketch2.addConstraint(Sketcher.Constraint("DistanceX", 12, 2, 8, 2, Q("20 mm")))
sketch2.addConstraint(Sketcher.Constraint("DistanceX", -1, 1, 8, 2, Q("81.4 mm")))
pocket1 = body.newObject("PartDesign::Pocket", "Pocket")
pocket1.Profile = sketch2
pocket1.Length = 10

doc.recompute()
